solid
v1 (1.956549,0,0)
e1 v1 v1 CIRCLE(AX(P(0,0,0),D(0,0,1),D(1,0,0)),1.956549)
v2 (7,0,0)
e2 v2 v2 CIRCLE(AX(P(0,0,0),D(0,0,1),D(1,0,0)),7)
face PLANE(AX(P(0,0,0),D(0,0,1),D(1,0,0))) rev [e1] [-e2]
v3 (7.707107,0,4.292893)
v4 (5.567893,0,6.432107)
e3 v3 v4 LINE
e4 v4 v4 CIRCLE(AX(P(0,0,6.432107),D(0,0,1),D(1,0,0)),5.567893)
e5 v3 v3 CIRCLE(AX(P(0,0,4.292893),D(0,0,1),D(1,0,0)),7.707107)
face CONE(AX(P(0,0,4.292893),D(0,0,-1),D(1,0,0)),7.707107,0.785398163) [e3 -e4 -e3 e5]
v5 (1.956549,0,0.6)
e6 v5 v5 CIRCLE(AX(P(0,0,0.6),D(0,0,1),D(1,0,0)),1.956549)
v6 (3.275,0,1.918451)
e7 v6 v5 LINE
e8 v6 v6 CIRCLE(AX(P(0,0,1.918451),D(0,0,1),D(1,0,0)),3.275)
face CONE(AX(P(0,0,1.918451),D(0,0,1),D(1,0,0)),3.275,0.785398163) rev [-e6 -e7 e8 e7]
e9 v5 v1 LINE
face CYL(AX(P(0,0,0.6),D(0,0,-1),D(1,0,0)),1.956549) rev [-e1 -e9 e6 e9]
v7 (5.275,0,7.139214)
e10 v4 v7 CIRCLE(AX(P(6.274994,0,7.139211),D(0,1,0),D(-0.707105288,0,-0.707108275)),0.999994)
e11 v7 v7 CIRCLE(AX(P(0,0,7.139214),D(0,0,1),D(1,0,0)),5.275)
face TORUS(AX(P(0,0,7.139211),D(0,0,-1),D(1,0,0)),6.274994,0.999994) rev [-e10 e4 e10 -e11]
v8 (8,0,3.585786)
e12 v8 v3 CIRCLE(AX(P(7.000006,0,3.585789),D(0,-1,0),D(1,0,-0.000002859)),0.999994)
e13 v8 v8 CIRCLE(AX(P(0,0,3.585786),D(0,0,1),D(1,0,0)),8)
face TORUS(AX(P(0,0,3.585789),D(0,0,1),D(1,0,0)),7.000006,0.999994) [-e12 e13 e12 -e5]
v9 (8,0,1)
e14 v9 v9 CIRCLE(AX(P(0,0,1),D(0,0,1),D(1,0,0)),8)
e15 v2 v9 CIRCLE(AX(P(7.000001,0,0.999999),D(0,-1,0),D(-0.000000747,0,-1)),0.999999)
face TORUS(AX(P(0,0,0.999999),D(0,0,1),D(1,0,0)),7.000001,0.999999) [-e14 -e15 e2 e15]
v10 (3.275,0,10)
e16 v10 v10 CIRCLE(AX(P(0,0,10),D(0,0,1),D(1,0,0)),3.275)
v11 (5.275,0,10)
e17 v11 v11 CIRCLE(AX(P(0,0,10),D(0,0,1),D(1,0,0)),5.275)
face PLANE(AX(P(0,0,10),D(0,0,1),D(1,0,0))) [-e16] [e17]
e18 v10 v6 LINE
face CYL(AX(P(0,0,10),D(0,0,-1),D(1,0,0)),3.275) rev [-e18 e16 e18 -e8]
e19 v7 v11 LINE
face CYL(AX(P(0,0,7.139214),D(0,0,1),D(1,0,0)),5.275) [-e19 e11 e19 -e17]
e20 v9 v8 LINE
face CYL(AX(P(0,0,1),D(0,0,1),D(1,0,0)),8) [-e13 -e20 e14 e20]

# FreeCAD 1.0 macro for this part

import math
import FreeCAD as App
import Part
import Sketcher
Q = App.Units.Quantity

doc = App.newDocument("Part")
body = doc.addObject("PartDesign::Body", "Body")

# Sketch on XZ plane
sketch1 = body.newObject("Sketcher::SketchObject", "Sketch")
sketch1.AttachmentSupport = (doc.getObject("XZ_Plane"), [""])
sketch1.MapMode = "FlatFace"
sketch1.addGeometry([
    Part.LineSegment(App.Vector(2, 0.6, 0), App.Vector(2, 0, 0)),  # 0
    Part.LineSegment(App.Vector(2, 0, 0), App.Vector(7, 0, 0)),  # 1
    Part.ArcOfCircle(Part.Circle(App.Vector(7, 1, 0), App.Vector(0, 0, 1), 1), math.radians(-90), math.radians(0)),  # 2
    Part.LineSegment(App.Vector(8, 1, 0), App.Vector(8, 3.6, 0)),  # 3
    Part.ArcOfCircle(Part.Circle(App.Vector(7, 3.6, 0), App.Vector(0, 0, 1), 1), math.radians(0), math.radians(45)),  # 4
    Part.LineSegment(App.Vector(7.7, 4.3, 0), App.Vector(5.6, 6.4, 0)),  # 5
    Part.ArcOfCircle(Part.Circle(App.Vector(6.3, 7.1, 0), App.Vector(0, 0, 1), 1), math.radians(180), math.radians(225)),  # 6
    Part.LineSegment(App.Vector(5.3, 7.1, 0), App.Vector(5.3, 10, 0)),  # 7
    Part.LineSegment(App.Vector(5.3, 10, 0), App.Vector(3.3, 10, 0)),  # 8
    Part.LineSegment(App.Vector(3.3, 10, 0), App.Vector(3.3, 1.9, 0)),  # 9
    Part.LineSegment(App.Vector(3.3, 1.9, 0), App.Vector(2, 0.6, 0)),  # 10
], False)
sketch1.addConstraint([
    Sketcher.Constraint("Coincident", 0, 2, 1, 1),
    Sketcher.Constraint("Tangent", 1, 2, 2, 1),
    Sketcher.Constraint("Tangent", 2, 2, 3, 1),
    Sketcher.Constraint("Coincident", 3, 2, 4, 1),
    Sketcher.Constraint("Coincident", 4, 2, 5, 1),
    Sketcher.Constraint("Coincident", 5, 2, 6, 2),
    Sketcher.Constraint("Coincident", 6, 1, 7, 1),
    Sketcher.Constraint("Coincident", 7, 2, 8, 1),
    Sketcher.Constraint("Coincident", 8, 2, 9, 1),
    Sketcher.Constraint("Coincident", 9, 2, 10, 1),
    Sketcher.Constraint("Coincident", 10, 2, 0, 1),
    Sketcher.Constraint("Vertical", 0),
    Sketcher.Constraint("Horizontal", 1),
    Sketcher.Constraint("Vertical", 3),
    Sketcher.Constraint("Vertical", 7),
    Sketcher.Constraint("Horizontal", 8),
    Sketcher.Constraint("Vertical", 9),
    Sketcher.Constraint("Equal", 4, 6),
    Sketcher.Constraint("PointOnObject", 0, 2, -1),
    Sketcher.Constraint("Perpendicular", 5, 10),
    Sketcher.Constraint("Radius", 2, Q("0.999999 mm")),
    Sketcher.Constraint("DistanceX", 8, 2, 8, 1, Q("2 mm")),
    Sketcher.Constraint("Angle", 5, Q("135 deg")),
    Sketcher.Constraint("DistanceY", 0, 2, 0, 1, Q("0.6 mm")),
    Sketcher.Constraint("DistanceX", -1, 1, 2, 3, Q("7.000001 mm")),
    Sketcher.Constraint("DistanceY", -1, 1, 7, 2, Q("10 mm")),
    Sketcher.Constraint("DistanceX", -1, 1, 6, 1, Q("5.275 mm")),
    Sketcher.Constraint("Radius", 4, Q("0.999994 mm")),
    Sketcher.Constraint("DistanceX", 1, 1, 1, 2, Q("5.043451 mm")),
    Sketcher.Constraint("DistanceX", 4, 3, 4, 2, Q("0.707101 mm")),
    Sketcher.Constraint("DistanceX", 5, 2, 6, 3, Q("0.707101 mm")),
    Sketcher.Constraint("DistanceY", 3, 1, 3, 2, Q("2.585786 mm")),
    Sketcher.Constraint("DistanceY", 7, 1, 7, 2, Q("2.860786 mm")),
    Sketcher.Constraint("DistanceY", -1, 1, 4, 3, Q("3.585789 mm")),
])
revolution = body.newObject("PartDesign::Revolution", "Revolution")
revolution.Profile = sketch1
revolution.ReferenceAxis = (sketch1, ["V_Axis"])
revolution.Angle = 360

doc.recompute()
